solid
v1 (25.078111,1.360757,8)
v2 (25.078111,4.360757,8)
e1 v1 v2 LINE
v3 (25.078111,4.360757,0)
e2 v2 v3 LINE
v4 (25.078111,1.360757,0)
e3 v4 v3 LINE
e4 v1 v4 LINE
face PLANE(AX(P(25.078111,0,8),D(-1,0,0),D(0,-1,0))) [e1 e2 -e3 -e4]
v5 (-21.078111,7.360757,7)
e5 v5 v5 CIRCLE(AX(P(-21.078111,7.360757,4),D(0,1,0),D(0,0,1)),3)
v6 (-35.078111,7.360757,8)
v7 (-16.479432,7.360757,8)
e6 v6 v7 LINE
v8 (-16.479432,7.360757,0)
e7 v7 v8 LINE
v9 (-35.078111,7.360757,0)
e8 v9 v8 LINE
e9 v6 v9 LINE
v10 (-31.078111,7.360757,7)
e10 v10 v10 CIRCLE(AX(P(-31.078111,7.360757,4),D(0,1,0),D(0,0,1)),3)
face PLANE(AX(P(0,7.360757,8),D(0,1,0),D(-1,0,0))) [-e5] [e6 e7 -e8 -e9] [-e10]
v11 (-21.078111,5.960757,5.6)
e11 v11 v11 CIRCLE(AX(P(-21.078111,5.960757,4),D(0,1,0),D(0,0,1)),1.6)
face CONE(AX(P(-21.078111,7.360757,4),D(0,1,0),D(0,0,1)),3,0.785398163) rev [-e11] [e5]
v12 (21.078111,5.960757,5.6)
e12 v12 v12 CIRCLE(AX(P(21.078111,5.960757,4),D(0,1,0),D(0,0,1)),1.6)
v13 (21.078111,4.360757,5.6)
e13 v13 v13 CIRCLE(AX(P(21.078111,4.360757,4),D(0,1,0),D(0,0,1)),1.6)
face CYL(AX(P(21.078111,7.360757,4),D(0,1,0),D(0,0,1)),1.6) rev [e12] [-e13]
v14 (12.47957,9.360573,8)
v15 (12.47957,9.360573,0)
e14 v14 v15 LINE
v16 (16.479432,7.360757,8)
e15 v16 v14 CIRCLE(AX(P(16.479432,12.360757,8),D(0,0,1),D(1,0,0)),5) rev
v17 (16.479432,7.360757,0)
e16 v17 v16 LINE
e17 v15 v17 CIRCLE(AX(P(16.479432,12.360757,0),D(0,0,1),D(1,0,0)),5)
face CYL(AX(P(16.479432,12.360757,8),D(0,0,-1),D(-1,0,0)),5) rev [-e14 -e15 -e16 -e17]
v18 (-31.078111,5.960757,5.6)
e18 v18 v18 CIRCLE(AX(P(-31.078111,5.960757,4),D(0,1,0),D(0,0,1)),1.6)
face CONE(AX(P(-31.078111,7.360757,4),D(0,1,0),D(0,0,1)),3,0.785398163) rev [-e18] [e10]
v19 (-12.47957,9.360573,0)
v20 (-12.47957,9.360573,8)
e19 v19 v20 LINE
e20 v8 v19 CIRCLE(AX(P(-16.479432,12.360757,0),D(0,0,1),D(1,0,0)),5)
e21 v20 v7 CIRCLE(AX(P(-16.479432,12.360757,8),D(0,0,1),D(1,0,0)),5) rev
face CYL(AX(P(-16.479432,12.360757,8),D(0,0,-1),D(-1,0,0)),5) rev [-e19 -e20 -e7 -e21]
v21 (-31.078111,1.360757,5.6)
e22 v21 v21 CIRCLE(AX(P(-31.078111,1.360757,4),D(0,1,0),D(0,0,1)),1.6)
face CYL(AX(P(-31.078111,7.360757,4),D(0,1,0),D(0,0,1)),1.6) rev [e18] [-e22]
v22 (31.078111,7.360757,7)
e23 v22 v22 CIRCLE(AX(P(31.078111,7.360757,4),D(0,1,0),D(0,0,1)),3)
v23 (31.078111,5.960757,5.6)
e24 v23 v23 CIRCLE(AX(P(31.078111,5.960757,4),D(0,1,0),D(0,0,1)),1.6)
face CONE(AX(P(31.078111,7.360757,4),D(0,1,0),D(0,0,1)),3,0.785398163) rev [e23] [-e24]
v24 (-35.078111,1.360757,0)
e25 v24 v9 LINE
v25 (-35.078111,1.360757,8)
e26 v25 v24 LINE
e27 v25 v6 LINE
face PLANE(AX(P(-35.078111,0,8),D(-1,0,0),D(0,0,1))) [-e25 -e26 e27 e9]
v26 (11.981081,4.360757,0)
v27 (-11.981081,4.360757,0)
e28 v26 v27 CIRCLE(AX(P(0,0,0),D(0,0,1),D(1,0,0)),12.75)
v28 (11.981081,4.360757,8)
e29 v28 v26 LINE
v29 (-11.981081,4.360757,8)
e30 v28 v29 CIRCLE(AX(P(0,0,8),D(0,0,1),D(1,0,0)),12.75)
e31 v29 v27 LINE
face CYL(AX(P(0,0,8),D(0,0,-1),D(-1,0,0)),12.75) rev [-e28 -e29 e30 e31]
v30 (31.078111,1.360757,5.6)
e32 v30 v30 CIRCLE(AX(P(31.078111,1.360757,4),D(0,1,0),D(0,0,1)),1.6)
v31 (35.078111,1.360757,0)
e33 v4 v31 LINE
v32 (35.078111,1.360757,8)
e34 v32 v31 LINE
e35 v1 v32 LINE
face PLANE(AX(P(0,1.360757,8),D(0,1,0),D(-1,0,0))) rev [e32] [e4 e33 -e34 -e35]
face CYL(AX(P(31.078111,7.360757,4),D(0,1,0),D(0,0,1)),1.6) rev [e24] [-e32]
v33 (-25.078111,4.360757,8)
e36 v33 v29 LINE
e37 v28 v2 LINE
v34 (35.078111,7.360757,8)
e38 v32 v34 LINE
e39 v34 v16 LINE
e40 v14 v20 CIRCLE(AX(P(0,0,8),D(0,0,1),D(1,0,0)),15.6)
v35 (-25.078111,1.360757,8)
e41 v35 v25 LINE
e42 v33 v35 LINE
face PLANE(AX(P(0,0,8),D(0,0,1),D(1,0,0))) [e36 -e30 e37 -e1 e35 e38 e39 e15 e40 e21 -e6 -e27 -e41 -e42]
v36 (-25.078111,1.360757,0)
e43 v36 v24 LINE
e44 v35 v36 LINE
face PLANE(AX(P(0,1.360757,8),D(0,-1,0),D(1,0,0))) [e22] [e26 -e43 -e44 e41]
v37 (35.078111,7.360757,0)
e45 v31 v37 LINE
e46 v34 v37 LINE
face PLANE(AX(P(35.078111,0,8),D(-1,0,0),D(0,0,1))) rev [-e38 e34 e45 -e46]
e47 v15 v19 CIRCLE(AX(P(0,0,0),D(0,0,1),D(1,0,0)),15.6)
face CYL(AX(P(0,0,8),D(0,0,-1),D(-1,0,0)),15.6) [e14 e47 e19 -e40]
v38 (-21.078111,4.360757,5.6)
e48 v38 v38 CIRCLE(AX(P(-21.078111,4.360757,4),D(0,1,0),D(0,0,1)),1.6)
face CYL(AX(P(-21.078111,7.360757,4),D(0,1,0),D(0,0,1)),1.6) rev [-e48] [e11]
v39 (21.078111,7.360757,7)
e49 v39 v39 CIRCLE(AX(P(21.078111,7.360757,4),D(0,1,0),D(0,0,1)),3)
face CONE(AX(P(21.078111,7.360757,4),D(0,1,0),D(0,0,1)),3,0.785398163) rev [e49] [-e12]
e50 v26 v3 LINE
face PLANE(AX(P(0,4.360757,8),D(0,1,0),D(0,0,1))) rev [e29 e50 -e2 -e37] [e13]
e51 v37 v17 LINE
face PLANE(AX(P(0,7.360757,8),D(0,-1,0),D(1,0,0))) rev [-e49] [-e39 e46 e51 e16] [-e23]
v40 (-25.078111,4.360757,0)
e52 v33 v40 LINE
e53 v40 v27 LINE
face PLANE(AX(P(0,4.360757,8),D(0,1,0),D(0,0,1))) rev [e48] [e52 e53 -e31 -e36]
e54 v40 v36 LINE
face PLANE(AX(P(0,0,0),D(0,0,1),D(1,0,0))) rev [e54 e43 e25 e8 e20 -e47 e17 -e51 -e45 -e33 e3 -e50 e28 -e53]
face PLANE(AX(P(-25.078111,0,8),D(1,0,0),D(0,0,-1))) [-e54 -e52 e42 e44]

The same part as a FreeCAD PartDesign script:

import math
import FreeCAD as App
import Part
import Sketcher
from FreeCAD import Vector


def edges_at(feature, points):
    """Names of the edges that pass closest to the given points."""
    edges = feature.Shape.Edges
    near = lambda p: min(range(len(edges)), key=lambda i: edges[i].distToShape(Part.Vertex(*p))[0])
    return sorted({f"Edge{near(p) + 1}" for p in points})

doc = App.newDocument("Part")
body = doc.addObject("PartDesign::Body", "Body")

# Sketch on XY plane
sketch1 = body.newObject("Sketcher::SketchObject", "Sketch")
sketch1.AttachmentSupport = (doc.getObject("XY_Plane"), [""])
sketch1.MapMode = "FlatFace"
sketch1.addGeometry(Part.LineSegment(Vector(-13.8, 7.4, 0), Vector(-35.1, 7.4, 0)), False)
sketch1.addGeometry(Part.LineSegment(Vector(-35.1, 7.4, 0), Vector(-35.1, 1.4, 0)), False)
sketch1.addGeometry(Part.LineSegment(Vector(-35.1, 1.4, 0), Vector(-25.1, 1.4, 0)), False)
sketch1.addGeometry(Part.LineSegment(Vector(-25.1, 1.4, 0), Vector(-25.1, 4.4, 0)), False)
sketch1.addGeometry(Part.LineSegment(Vector(-25.1, 4.4, 0), Vector(-12, 4.4, 0)), False)
sketch1.addGeometry(Part.ArcOfCircle(Part.Circle(Vector(0, 0, 0), Vector(0, 0, 1), 12.8), math.radians(20), math.radians(160)), False)
sketch1.addGeometry(Part.LineSegment(Vector(12, 4.4, 0), Vector(25.1, 4.4, 0)), False)
sketch1.addGeometry(Part.LineSegment(Vector(25.1, 4.4, 0), Vector(25.1, 1.4, 0)), False)
sketch1.addGeometry(Part.LineSegment(Vector(25.1, 1.4, 0), Vector(35.1, 1.4, 0)), False)
sketch1.addGeometry(Part.LineSegment(Vector(35.1, 1.4, 0), Vector(35.1, 7.4, 0)), False)
sketch1.addGeometry(Part.LineSegment(Vector(35.1, 7.4, 0), Vector(13.8, 7.4, 0)), False)
sketch1.addGeometry(Part.ArcOfCircle(Part.Circle(Vector(0, 0, 0), Vector(0, 0, 1), 15.6), math.radians(28), math.radians(152)), False)
sketch1.addConstraint(Sketcher.Constraint("Coincident", 0, 2, 1, 1))
sketch1.addConstraint(Sketcher.Constraint("Coincident", 1, 2, 2, 1))
sketch1.addConstraint(Sketcher.Constraint("Coincident", 2, 2, 3, 1))
sketch1.addConstraint(Sketcher.Constraint("Coincident", 3, 2, 4, 1))
sketch1.addConstraint(Sketcher.Constraint("Coincident", 4, 2, 5, 2))
sketch1.addConstraint(Sketcher.Constraint("Coincident", 5, 1, 6, 1))
sketch1.addConstraint(Sketcher.Constraint("Coincident", 6, 2, 7, 1))
sketch1.addConstraint(Sketcher.Constraint("Coincident", 7, 2, 8, 1))
sketch1.addConstraint(Sketcher.Constraint("Coincident", 8, 2, 9, 1))
sketch1.addConstraint(Sketcher.Constraint("Coincident", 9, 2, 10, 1))
sketch1.addConstraint(Sketcher.Constraint("Coincident", 10, 2, 11, 1))
sketch1.addConstraint(Sketcher.Constraint("Coincident", 11, 2, 0, 1))
sketch1.addConstraint(Sketcher.Constraint("Horizontal", 0))
sketch1.addConstraint(Sketcher.Constraint("Vertical", 1))
sketch1.addConstraint(Sketcher.Constraint("Horizontal", 2))
sketch1.addConstraint(Sketcher.Constraint("Vertical", 3))
sketch1.addConstraint(Sketcher.Constraint("Horizontal", 4))
sketch1.addConstraint(Sketcher.Constraint("Horizontal", 6))
sketch1.addConstraint(Sketcher.Constraint("Vertical", 7))
sketch1.addConstraint(Sketcher.Constraint("Horizontal", 8))
sketch1.addConstraint(Sketcher.Constraint("Vertical", 9))
sketch1.addConstraint(Sketcher.Constraint("Horizontal", 10))
sketch1.addConstraint(Sketcher.Constraint("Coincident", 5, 3, -1, 1))
sketch1.addConstraint(Sketcher.Constraint("Coincident", 11, 3, -1, 1))
sketch1.addConstraint(Sketcher.Constraint("Symmetric", 3, 2, 6, 2, -2))
sketch1.addConstraint(Sketcher.Constraint("Symmetric", 1, 2, 8, 2, -2))
sketch1.addConstraint(Sketcher.Constraint("Horizontal", 0, 2, 9, 2))
sketch1.addConstraint(Sketcher.Constraint("Radius", 11, 15.6))
sketch1.addConstraint(Sketcher.Constraint("DistanceX", 2, 1, 2, 2, 10.0))
sketch1.addConstraint(Sketcher.Constraint("DistanceY", 1, 2, 1, 1, 6.0))
sketch1.addConstraint(Sketcher.Constraint("DistanceY", 3, 1, 3, 2, 3.0))
sketch1.addConstraint(Sketcher.Constraint("Radius", 5, 12.75))
sketch1.addConstraint(Sketcher.Constraint("DistanceX", 4, 1, 4, 2, 13.09703))
sketch1.addConstraint(Sketcher.Constraint("DistanceX", 0, 2, 0, 1, 21.323866))
pad1 = body.newObject("PartDesign::Pad", "Pad")
pad1.Profile = sketch1
pad1.Length = 8

# Sketch on XZ plane
sketch2 = body.newObject("Sketcher::SketchObject", "Sketch001")
sketch2.AttachmentSupport = (doc.getObject("XZ_Plane"), [""])
sketch2.MapMode = "FlatFace"
sketch2.AttachmentOffset = App.Placement(Vector(0, 0, -7.360757), App.Rotation())
sketch2.addGeometry(Part.Circle(Vector(-21.1, 4, 0), Vector(0, 0, 1), 1.6), False)
sketch2.addGeometry(Part.Circle(Vector(21.1, 4, 0), Vector(0, 0, 1), 1.6), False)
sketch2.addGeometry(Part.Circle(Vector(-31.1, 4, 0), Vector(0, 0, 1), 1.6), False)
sketch2.addGeometry(Part.Circle(Vector(31.1, 4, 0), Vector(0, 0, 1), 1.6), False)
sketch2.addConstraint(Sketcher.Constraint("Equal", 0, 1))
sketch2.addConstraint(Sketcher.Constraint("Equal", 1, 2))
sketch2.addConstraint(Sketcher.Constraint("Equal", 2, 3))
sketch2.addConstraint(Sketcher.Constraint("Symmetric", 0, 3, 1, 3, -2))
sketch2.addConstraint(Sketcher.Constraint("Symmetric", 2, 3, 3, 3, -2))
sketch2.addConstraint(Sketcher.Constraint("Horizontal", 1, 3, 2, 3))
sketch2.addConstraint(Sketcher.Constraint("Diameter", 0, 3.2))
sketch2.addConstraint(Sketcher.Constraint("DistanceY", -1, 1, 0, 3, 4.0))
sketch2.addConstraint(Sketcher.Constraint("DistanceX", 2, 3, 0, 3, 10.0))
sketch2.addConstraint(Sketcher.Constraint("DistanceX", 0, 3, -1, 1, 21.078111))
doc.recompute()
hole = body.newObject("PartDesign::Hole", "Hole")
hole.Profile = sketch2
hole.ThreadType = "None"
hole.Diameter = 3.2
hole.DepthType = "ThroughAll"
hole.HoleCutType = "Countersink"
hole.HoleCutDiameter = 6
hole.HoleCutCountersinkAngle = 90
hole.Reversed = True
doc.recompute()

fillet = body.newObject("PartDesign::Fillet", "Fillet")
fillet.Base = (hole, edges_at(hole, [(-13.754, 7.361, 4), (13.754, 7.361, 4)]))
fillet.Radius = 5

doc.recompute()
